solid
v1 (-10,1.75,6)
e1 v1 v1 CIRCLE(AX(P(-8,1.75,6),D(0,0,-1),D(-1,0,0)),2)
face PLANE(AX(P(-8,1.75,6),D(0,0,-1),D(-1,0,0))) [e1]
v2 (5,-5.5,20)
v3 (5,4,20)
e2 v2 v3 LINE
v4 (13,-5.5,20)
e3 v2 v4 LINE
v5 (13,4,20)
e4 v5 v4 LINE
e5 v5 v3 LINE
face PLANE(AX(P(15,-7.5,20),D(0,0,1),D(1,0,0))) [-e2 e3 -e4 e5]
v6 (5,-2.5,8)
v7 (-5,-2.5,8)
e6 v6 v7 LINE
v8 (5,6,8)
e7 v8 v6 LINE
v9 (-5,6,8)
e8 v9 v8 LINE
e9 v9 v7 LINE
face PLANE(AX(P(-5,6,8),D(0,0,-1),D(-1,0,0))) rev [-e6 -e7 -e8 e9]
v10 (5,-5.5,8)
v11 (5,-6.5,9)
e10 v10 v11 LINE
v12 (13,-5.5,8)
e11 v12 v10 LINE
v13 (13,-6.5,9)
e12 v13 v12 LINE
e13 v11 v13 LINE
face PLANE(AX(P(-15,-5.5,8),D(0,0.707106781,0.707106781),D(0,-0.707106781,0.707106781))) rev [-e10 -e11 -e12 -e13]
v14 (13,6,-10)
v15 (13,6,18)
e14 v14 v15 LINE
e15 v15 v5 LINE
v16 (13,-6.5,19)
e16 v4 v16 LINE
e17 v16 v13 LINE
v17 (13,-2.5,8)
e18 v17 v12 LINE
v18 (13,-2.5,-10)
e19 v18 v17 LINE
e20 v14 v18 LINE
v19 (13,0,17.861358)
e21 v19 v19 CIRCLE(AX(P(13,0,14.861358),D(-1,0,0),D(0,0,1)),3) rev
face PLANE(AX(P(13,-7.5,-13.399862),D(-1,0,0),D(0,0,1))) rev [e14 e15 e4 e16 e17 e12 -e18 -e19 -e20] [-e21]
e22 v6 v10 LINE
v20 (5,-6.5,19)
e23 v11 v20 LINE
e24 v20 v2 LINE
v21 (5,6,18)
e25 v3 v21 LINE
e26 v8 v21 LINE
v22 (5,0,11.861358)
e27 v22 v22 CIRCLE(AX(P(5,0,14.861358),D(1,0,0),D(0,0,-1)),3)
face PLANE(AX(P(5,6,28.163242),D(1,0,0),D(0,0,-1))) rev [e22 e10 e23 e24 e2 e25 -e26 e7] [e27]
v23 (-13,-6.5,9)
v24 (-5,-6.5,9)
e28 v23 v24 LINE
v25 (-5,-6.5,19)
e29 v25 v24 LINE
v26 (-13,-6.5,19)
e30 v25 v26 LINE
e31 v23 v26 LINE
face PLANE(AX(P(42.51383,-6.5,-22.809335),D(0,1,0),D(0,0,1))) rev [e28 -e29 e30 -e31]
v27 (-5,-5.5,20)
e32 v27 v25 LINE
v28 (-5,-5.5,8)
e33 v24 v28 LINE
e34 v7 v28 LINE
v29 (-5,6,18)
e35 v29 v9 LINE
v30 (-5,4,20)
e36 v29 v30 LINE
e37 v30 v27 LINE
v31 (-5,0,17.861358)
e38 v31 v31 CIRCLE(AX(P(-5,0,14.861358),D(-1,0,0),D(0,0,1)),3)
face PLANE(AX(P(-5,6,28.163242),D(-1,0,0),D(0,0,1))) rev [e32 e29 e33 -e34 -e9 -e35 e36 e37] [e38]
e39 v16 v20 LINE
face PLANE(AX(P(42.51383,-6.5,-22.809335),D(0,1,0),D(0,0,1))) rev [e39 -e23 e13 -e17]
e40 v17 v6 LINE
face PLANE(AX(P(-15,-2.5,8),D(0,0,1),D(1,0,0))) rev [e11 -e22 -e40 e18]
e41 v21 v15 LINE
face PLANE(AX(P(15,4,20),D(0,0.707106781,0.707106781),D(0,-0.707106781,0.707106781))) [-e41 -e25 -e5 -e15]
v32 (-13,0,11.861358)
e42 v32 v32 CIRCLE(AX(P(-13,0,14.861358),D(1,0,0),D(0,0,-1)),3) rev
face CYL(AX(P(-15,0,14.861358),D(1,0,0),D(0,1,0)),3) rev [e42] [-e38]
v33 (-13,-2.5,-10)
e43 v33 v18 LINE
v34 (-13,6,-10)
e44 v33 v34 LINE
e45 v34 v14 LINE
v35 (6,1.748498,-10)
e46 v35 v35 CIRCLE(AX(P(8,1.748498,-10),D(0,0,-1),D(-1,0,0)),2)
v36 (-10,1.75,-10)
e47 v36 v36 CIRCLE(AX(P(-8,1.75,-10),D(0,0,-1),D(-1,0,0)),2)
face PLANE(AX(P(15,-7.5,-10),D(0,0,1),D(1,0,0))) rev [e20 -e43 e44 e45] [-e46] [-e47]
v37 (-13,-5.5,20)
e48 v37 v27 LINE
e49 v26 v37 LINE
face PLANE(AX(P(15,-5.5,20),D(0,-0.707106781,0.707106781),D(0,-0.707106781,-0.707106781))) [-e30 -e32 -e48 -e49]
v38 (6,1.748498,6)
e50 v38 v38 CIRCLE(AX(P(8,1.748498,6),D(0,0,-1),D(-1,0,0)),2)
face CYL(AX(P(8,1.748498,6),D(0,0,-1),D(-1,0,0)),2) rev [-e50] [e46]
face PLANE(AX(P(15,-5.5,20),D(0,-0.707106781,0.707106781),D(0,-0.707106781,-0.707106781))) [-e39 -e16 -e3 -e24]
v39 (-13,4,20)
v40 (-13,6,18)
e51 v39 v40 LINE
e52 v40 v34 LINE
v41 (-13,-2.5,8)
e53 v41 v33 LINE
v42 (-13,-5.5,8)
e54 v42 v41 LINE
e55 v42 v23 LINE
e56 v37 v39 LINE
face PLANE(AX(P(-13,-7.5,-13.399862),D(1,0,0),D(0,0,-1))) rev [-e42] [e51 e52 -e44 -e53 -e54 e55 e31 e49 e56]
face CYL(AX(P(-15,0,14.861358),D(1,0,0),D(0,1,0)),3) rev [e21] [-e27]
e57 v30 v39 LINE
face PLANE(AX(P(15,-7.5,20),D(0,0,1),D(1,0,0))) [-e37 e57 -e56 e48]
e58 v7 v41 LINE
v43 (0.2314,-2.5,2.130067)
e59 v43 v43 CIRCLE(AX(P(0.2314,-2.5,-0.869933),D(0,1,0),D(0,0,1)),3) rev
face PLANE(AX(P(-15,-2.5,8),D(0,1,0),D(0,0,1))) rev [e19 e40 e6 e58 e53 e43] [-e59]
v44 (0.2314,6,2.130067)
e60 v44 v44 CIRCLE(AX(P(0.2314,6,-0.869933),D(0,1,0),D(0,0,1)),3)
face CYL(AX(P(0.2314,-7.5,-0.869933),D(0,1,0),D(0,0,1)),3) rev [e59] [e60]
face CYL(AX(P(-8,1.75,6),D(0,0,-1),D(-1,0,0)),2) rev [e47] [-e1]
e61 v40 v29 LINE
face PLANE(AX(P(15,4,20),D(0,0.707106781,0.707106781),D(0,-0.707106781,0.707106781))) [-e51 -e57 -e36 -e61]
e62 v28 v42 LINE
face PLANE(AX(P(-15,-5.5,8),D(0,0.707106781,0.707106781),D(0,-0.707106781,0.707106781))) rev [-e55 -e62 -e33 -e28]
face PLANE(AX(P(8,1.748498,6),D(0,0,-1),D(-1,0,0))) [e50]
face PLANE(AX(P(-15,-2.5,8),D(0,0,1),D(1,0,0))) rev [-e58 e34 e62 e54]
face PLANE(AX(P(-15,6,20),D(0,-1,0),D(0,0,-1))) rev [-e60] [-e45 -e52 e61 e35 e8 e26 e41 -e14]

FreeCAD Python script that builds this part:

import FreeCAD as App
import Part
import Sketcher
from FreeCAD import Vector
Q = App.Units.Quantity


def edges_at(feature, points):
    """Names of the edges that pass closest to the given points."""
    edges = feature.Shape.Edges
    near = lambda p: min(range(len(edges)), key=lambda i: edges[i].distToShape(Part.Vertex(*p))[0])
    return sorted({f"Edge{near(p) + 1}" for p in points})


def add_polygon(sketch, points):
    """Adds a closed chain of lines whose ends are joined by coincident constraints."""
    first, n = sketch.GeometryCount, len(points)
    for a, b in zip(points, points[1:] + points[:1]):
        sketch.addGeometry(Part.LineSegment(App.Vector(*a, 0), App.Vector(*b, 0)), False)
    for i in range(n):
        sketch.addConstraint(Sketcher.Constraint("Coincident", first + i, 2, first + (i + 1) % n, 1))

doc = App.newDocument("Part")
body = doc.addObject("PartDesign::Body", "Body")

sketch1 = body.newObject("Sketcher::SketchObject", "Sketch")
sketch1.AttachmentSupport = (doc.getObject("XY_Plane"), [""])
sketch1.MapMode = "FlatFace"
add_polygon(sketch1, [(-15, 6), (-15, -7.5), (15, -7.5), (15, 6)])
sketch1.addConstraint([
    Sketcher.Constraint("Vertical", 0),
    Sketcher.Constraint("Horizontal", 1),
    Sketcher.Constraint("Vertical", 2),
    Sketcher.Constraint("Horizontal", 3),
    Sketcher.Constraint("DistanceX", 1, 1, 1, 2, Q("30 mm")),
    Sketcher.Constraint("DistanceY", 0, 2, 0, 1, Q("13.5 mm")),
    Sketcher.Constraint("DistanceX", 0, 2, -1, 1, Q("15 mm")),
    Sketcher.Constraint("DistanceY", -1, 1, 2, 2, Q("6 mm")),
])
pad1 = body.newObject("PartDesign::Pad", "Pad")
pad1.Profile = sketch1
pad1.Length = 20

sketch2 = body.newObject("Sketcher::SketchObject", "Sketch001")
sketch2.AttachmentSupport = (doc.getObject("XZ_Plane"), [""])
sketch2.MapMode = "FlatFace"
sketch2.AttachmentOffset = App.Placement(Vector(0, 0, 7.5), App.Rotation())
add_polygon(sketch2, [(-5, 28.163242), (-5, 8), (5, 8), (5, 28.163242)])
sketch2.addConstraint([
    Sketcher.Constraint("Vertical", 0),
    Sketcher.Constraint("Horizontal", 1),
    Sketcher.Constraint("Vertical", 2),
    Sketcher.Constraint("Horizontal", 3),
    Sketcher.Constraint("DistanceX", 1, 1, 1, 2, Q("10 mm")),
    Sketcher.Constraint("DistanceX", 0, 2, -1, 1, Q("5 mm")),
    Sketcher.Constraint("DistanceY", -1, 1, 0, 2, Q("8 mm")),
    Sketcher.Constraint("DistanceY", 0, 2, 0, 1, Q("20.163242 mm")),
])
pocket1 = body.newObject("PartDesign::Pocket", "Pocket")
pocket1.Profile = sketch2
pocket1.Type = "ThroughAll"

sketch3 = body.newObject("Sketcher::SketchObject", "Sketch002")
sketch3.AttachmentSupport = (doc.getObject("YZ_Plane"), [""])
sketch3.MapMode = "FlatFace"
sketch3.AttachmentOffset = App.Placement(Vector(0, 0, 15), App.Rotation())
sketch3.addGeometry(Part.Circle(Vector(0, 14.861358, 0), Vector(0, 0, 1), 3), False)
sketch3.addConstraint([
    Sketcher.Constraint("PointOnObject", 0, 3, -2),
    Sketcher.Constraint("Diameter", 0, Q("6 mm")),
    Sketcher.Constraint("DistanceY", -1, 1, 0, 3, Q("14.861358 mm")),
])
pocket2 = body.newObject("PartDesign::Pocket", "Pocket001")
pocket2.Profile = sketch3
pocket2.Type = "ThroughAll"

sketch4 = body.newObject("Sketcher::SketchObject", "Sketch003")
sketch4.AttachmentSupport = (doc.getObject("XY_Plane"), [""])
sketch4.MapMode = "FlatFace"
add_polygon(sketch4, [(15, 6), (15, -7.5), (-15, -7.5), (-15, 6)])
sketch4.addConstraint([
    Sketcher.Constraint("Vertical", 0),
    Sketcher.Constraint("Horizontal", 1),
    Sketcher.Constraint("Vertical", 2),
    Sketcher.Constraint("Horizontal", 3),
    Sketcher.Constraint("DistanceX", 1, 2, 1, 1, Q("30 mm")),
    Sketcher.Constraint("DistanceY", 0, 2, 0, 1, Q("13.5 mm")),
    Sketcher.Constraint("DistanceX", -1, 1, 0, 2, Q("15 mm")),
    Sketcher.Constraint("DistanceY", -1, 1, 2, 2, Q("6 mm")),
])
pad2 = body.newObject("PartDesign::Pad", "Pad001")
pad2.Profile = sketch4
pad2.Length = 10
pad2.Reversed = True

sketch5 = body.newObject("Sketcher::SketchObject", "Sketch004")
sketch5.AttachmentSupport = (doc.getObject("XZ_Plane"), [""])
sketch5.MapMode = "FlatFace"
sketch5.AttachmentOffset = App.Placement(Vector(0, 0, -6), App.Rotation())
sketch5.addGeometry(Part.Circle(Vector(0.2314, -0.869933, 0), Vector(0, 0, 1), 3), False)
sketch5.addConstraint([
    Sketcher.Constraint("Diameter", 0, Q("6 mm")),
    Sketcher.Constraint("DistanceX", -1, 1, 0, 3, Q("0.2314 mm")),
    Sketcher.Constraint("DistanceY", 0, 3, -1, 1, Q("0.869933 mm")),
])
pocket3 = body.newObject("PartDesign::Pocket", "Pocket002")
pocket3.Profile = sketch5
pocket3.Type = "ThroughAll"
pocket3.Reversed = True

sketch6 = body.newObject("Sketcher::SketchObject", "Sketch005")
sketch6.AttachmentSupport = (doc.getObject("XZ_Plane"), [""])
sketch6.MapMode = "FlatFace"
sketch6.AttachmentOffset = App.Placement(Vector(0, 0, 7.5), App.Rotation())
add_polygon(sketch6, [(-15, 8), (-15, -10), (15, -10), (15, 8)])
sketch6.addConstraint([
    Sketcher.Constraint("Vertical", 0),
    Sketcher.Constraint("Horizontal", 1),
    Sketcher.Constraint("Vertical", 2),
    Sketcher.Constraint("Horizontal", 3),
    Sketcher.Constraint("DistanceX", 1, 1, 1, 2, Q("30 mm")),
    Sketcher.Constraint("DistanceY", 0, 2, 0, 1, Q("18 mm")),
    Sketcher.Constraint("DistanceX", 0, 2, -1, 1, Q("15 mm")),
    Sketcher.Constraint("DistanceY", 0, 2, -1, 1, Q("10 mm")),
])
pocket4 = body.newObject("PartDesign::Pocket", "Pocket003")
pocket4.Profile = sketch6
pocket4.Length = 5
doc.recompute()

chamfer = body.newObject("PartDesign::Chamfer", "Chamfer")
chamfer.Base = (pocket4, edges_at(pocket4, [
    (-10, -7.5, 20),
    (-10, 6, 20),
    (10, -7.5, 20),
    (10, -7.5, 8),
    (-10, -7.5, 8),
    (10, 6, 20),
]))
chamfer.Size = 2

sketch7 = body.newObject("Sketcher::SketchObject", "Sketch006")
sketch7.AttachmentSupport = (doc.getObject("XZ_Plane"), [""])
sketch7.MapMode = "FlatFace"
sketch7.AttachmentOffset = App.Placement(Vector(0, 0, -6), App.Rotation())
add_polygon(sketch7, [(13, -13.399862), (13, 20.058279), (19.523991, 20.058279), (19.523991, -13.399862)])
add_polygon(sketch7, [(-19.523991, -13.399862), (-19.523991, 20.058279), (-13, 20.058279), (-13, -13.399862)])
sketch7.addConstraint([
    Sketcher.Constraint("Vertical", 0),
    Sketcher.Constraint("Horizontal", 1),
    Sketcher.Constraint("Vertical", 2),
    Sketcher.Constraint("Horizontal", 3),
    Sketcher.Constraint("Vertical", 4),
    Sketcher.Constraint("Horizontal", 5),
    Sketcher.Constraint("Vertical", 6),
    Sketcher.Constraint("Horizontal", 7),
    Sketcher.Constraint("Symmetric", 1, 2, 4, 2, -2),
    Sketcher.Constraint("Symmetric", 3, 2, 6, 2, -2),
    Sketcher.Constraint("DistanceX", -1, 1, 0, 2, Q("13 mm")),
    Sketcher.Constraint("DistanceX", 1, 1, 1, 2, Q("6.523991 mm")),
    Sketcher.Constraint("DistanceY", 0, 1, 0, 2, Q("33.45814 mm")),
    Sketcher.Constraint("DistanceY", -1, 1, 0, 2, Q("20.058279 mm")),
])
pocket5 = body.newObject("PartDesign::Pocket", "Pocket004")
pocket5.Profile = sketch7
pocket5.Type = "ThroughAll"
pocket5.Reversed = True

sketch8 = body.newObject("Sketcher::SketchObject", "Sketch007")
sketch8.AttachmentSupport = (doc.getObject("XZ_Plane"), [""])
sketch8.MapMode = "FlatFace"
sketch8.AttachmentOffset = App.Placement(Vector(0, 0, 7.5), App.Rotation())
add_polygon(sketch8, [(-42.390096, 22.153998), (-42.390096, -22.809335), (42.51383, -22.809335), (42.51383, 22.153998)])
sketch8.addConstraint([
    Sketcher.Constraint("Vertical", 0),
    Sketcher.Constraint("Horizontal", 1),
    Sketcher.Constraint("Vertical", 2),
    Sketcher.Constraint("Horizontal", 3),
    Sketcher.Constraint("DistanceY", -1, 1, 2, 2, Q("22.153998 mm")),
    Sketcher.Constraint("DistanceX", 1, 1, 1, 2, Q("84.903926 mm")),
    Sketcher.Constraint("DistanceY", 0, 2, 0, 1, Q("44.963333 mm")),
    Sketcher.Constraint("DistanceX", -1, 1, 1, 2, Q("42.51383 mm")),
])
pocket6 = body.newObject("PartDesign::Pocket", "Pocket005")
pocket6.Profile = sketch8
pocket6.Length = 1

sketch9 = body.newObject("Sketcher::SketchObject", "Sketch008")
sketch9.AttachmentSupport = (doc.getObject("XY_Plane"), [""])
sketch9.MapMode = "FlatFace"
sketch9.AttachmentOffset = App.Placement(Vector(0, 0, -10), App.Rotation())
sketch9.addGeometry([
    Part.Circle(Vector(8, 1.748498, 0), Vector(0, 0, 1), 2),
    Part.Circle(Vector(-8, 1.75, 0), Vector(0, 0, 1), 2),
], False)
sketch9.addConstraint([
    Sketcher.Constraint("Equal", 0, 1),
    Sketcher.Constraint("Diameter", 0, Q("4 mm")),
    Sketcher.Constraint("DistanceX", -1, 1, 0, 3, Q("8 mm")),
    Sketcher.Constraint("DistanceX", 1, 3, -1, 1, Q("8 mm")),
    Sketcher.Constraint("DistanceY", -1, 1, 1, 3, Q("1.75 mm")),
    Sketcher.Constraint("DistanceY", -1, 1, 0, 3, Q("1.748498 mm")),
])
pocket7 = body.newObject("PartDesign::Pocket", "Pocket006")
pocket7.Profile = sketch9
pocket7.Length = 16
pocket7.Reversed = True

doc.recompute()
